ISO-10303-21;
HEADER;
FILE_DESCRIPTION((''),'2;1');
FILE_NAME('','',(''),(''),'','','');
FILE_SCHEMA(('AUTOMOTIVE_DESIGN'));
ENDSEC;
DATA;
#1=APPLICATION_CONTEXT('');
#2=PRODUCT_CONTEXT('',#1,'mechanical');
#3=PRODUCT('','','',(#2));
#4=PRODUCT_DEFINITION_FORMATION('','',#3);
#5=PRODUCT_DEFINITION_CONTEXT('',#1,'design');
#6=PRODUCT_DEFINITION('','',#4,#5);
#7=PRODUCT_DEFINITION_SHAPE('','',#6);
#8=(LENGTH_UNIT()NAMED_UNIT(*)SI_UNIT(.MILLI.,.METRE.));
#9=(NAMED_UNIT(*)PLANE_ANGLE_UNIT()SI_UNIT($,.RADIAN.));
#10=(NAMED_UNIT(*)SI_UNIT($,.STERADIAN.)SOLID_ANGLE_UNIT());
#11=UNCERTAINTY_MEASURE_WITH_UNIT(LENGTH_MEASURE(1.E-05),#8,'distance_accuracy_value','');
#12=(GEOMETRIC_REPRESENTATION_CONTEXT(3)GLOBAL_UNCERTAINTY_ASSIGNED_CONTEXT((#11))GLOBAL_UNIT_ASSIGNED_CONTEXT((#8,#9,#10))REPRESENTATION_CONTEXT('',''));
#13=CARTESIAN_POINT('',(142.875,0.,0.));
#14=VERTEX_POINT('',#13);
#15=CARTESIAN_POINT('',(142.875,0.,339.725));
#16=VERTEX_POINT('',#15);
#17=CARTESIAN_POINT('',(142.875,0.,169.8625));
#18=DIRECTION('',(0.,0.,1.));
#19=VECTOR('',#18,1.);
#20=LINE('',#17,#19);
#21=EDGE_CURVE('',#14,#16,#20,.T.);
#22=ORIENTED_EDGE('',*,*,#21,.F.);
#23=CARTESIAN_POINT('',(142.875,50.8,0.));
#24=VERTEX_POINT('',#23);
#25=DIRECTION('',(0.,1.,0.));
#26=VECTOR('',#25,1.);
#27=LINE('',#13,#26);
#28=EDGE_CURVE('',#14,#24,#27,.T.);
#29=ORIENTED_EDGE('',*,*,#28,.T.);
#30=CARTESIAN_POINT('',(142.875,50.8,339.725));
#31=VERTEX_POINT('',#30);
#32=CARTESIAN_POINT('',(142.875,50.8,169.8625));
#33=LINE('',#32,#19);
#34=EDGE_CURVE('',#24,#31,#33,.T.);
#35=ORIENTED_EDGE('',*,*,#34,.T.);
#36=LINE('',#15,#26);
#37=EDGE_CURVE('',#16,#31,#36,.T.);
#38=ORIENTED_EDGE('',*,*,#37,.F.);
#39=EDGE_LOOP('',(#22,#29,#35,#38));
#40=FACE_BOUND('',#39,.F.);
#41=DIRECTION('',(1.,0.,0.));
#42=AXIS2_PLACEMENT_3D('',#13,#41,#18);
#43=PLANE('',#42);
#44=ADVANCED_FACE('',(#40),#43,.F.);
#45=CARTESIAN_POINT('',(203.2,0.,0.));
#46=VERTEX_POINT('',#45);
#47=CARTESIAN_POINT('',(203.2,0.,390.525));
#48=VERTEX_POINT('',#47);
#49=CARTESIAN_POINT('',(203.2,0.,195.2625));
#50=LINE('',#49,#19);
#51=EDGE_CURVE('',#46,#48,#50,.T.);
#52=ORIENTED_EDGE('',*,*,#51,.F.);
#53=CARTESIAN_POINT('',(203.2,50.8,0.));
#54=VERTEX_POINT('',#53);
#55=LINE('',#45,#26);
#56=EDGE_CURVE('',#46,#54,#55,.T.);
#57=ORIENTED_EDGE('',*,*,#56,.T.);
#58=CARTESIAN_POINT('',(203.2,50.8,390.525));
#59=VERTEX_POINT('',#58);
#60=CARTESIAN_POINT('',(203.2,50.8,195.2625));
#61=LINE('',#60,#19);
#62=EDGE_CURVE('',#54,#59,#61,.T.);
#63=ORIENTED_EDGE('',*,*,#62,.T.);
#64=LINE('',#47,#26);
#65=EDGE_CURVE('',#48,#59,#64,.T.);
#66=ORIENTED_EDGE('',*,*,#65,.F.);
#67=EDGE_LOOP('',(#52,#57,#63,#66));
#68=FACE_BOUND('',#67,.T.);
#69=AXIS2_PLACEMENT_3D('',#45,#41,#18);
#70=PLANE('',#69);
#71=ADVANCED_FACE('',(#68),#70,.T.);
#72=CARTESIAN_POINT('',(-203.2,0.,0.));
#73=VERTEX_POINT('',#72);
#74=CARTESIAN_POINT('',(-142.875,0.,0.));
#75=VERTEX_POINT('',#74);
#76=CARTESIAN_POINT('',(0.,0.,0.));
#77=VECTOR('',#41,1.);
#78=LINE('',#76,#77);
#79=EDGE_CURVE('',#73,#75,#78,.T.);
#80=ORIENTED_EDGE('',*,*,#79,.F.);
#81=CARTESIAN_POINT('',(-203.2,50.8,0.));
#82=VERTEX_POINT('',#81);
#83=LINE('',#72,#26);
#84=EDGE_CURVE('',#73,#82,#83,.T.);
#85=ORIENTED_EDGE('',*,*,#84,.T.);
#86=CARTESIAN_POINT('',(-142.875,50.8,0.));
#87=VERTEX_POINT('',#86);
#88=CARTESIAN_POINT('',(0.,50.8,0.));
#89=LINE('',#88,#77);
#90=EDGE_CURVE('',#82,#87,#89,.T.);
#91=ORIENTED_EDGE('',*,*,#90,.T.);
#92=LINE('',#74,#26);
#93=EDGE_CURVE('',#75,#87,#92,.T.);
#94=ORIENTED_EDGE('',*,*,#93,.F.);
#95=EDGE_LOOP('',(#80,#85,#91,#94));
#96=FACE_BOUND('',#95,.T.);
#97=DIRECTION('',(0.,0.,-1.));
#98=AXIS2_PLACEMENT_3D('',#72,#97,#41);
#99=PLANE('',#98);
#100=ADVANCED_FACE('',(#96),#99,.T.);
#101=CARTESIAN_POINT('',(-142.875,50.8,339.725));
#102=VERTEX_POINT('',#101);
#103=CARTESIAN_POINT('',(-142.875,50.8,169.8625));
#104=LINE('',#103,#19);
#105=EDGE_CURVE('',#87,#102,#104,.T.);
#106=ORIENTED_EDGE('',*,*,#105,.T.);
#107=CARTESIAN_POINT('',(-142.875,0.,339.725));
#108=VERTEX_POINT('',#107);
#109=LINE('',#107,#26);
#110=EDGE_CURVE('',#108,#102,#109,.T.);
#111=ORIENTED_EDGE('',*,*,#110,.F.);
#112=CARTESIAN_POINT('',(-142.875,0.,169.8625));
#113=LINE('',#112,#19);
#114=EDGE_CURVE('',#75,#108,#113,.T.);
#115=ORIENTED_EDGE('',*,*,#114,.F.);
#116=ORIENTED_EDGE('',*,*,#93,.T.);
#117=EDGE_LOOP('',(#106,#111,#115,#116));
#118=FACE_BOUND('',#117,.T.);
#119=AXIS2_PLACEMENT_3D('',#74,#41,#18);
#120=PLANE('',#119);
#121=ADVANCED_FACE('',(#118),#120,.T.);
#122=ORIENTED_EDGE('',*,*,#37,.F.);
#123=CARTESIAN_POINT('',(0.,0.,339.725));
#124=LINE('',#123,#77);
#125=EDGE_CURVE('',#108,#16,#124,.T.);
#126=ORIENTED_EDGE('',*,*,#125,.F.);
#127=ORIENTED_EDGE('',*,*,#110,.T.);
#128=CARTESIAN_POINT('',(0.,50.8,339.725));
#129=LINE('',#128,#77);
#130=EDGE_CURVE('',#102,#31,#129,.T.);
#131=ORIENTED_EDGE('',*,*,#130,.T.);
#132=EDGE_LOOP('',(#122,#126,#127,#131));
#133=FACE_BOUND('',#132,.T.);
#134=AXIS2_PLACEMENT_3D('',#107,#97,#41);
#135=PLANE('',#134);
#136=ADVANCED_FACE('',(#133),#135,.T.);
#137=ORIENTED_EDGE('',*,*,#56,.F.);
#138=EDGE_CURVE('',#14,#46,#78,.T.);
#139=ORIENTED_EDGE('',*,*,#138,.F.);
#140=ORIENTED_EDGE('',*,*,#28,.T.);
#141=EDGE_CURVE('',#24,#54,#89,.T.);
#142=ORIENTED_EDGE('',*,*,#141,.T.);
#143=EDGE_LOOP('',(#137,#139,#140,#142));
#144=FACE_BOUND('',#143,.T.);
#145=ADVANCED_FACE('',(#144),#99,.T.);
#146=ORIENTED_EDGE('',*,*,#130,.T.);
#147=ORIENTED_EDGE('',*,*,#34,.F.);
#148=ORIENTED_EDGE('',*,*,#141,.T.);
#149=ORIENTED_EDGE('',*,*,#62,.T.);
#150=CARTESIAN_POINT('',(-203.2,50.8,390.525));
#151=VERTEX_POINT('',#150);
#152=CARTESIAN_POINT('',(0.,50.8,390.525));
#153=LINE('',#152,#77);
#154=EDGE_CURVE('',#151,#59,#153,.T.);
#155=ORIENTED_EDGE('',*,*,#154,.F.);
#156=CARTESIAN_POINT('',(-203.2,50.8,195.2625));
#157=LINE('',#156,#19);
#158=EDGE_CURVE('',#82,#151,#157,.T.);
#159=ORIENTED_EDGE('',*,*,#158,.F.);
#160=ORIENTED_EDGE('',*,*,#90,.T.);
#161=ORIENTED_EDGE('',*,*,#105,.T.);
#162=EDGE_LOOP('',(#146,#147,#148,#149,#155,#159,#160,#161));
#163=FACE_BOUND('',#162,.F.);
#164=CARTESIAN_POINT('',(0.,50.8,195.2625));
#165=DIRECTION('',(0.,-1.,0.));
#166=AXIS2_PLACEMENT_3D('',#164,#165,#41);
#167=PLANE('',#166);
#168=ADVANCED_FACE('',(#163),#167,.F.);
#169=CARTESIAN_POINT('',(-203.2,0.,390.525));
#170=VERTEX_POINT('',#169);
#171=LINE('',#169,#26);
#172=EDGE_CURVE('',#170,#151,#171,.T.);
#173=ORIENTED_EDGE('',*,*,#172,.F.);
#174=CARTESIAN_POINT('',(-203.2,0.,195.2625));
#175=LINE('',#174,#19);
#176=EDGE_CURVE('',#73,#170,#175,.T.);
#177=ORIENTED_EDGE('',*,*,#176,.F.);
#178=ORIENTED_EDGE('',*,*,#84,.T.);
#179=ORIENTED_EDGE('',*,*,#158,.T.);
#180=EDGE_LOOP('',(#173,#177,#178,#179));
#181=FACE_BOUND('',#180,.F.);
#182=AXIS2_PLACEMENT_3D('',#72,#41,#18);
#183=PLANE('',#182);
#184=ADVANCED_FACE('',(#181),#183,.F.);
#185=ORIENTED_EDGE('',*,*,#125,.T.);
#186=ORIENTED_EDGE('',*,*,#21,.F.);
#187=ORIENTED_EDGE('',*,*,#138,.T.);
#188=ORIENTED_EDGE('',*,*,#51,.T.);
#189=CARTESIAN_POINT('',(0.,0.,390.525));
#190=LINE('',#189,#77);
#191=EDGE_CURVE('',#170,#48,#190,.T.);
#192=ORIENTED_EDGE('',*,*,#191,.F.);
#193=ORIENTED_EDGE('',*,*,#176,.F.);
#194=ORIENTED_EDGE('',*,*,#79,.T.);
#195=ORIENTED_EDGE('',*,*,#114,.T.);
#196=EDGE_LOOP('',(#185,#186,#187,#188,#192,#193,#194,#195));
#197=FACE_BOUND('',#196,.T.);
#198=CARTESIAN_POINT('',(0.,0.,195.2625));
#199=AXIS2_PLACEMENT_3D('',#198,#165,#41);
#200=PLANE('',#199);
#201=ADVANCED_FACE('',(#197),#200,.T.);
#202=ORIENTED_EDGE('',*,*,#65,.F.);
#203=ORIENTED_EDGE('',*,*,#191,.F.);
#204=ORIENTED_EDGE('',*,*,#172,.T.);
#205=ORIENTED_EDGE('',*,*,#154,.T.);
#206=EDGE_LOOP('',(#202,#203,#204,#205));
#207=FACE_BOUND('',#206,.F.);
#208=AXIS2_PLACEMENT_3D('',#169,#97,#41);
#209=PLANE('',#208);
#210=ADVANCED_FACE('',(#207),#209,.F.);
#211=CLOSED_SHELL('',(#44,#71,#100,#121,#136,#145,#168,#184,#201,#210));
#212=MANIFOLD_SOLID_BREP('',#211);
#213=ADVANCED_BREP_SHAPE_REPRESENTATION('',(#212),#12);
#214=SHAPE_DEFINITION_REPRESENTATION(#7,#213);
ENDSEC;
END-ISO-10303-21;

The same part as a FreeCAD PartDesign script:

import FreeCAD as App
import Part
import Sketcher
Q = App.Units.Quantity

doc = App.newDocument("Part")
body = doc.addObject("PartDesign::Body", "Body")

# Sketch on XZ plane
sketch1 = doc.addObject("Sketcher::SketchObject", "Sketch")
body.addObject(sketch1)
sketch1.AttachmentSupport = (doc.XZ_Plane, [""])
sketch1.MapMode = "FlatFace"
sketch1.addGeometry([
    Part.LineSegment(App.Vector(-203, 391, 0), App.Vector(-203, 0, 0)),
    Part.LineSegment(App.Vector(-203, 0, 0), App.Vector(203, 0, 0)),
    Part.LineSegment(App.Vector(203, 0, 0), App.Vector(203, 391, 0)),
    Part.LineSegment(App.Vector(203, 391, 0), App.Vector(-203, 391, 0)),
], False)
sketch1.addConstraint([
    Sketcher.Constraint("Coincident", 0, 2, 1, 1),
    Sketcher.Constraint("Coincident", 1, 2, 2, 1),
    Sketcher.Constraint("Coincident", 2, 2, 3, 1),
    Sketcher.Constraint("Coincident", 3, 2, 0, 1),
    Sketcher.Constraint("Vertical", 0),
    Sketcher.Constraint("Horizontal", 1),
    Sketcher.Constraint("Vertical", 2),
    Sketcher.Constraint("Horizontal", 3),
    Sketcher.Constraint("Symmetric", 0, 2, 1, 2, -1, 1),
    Sketcher.Constraint("DistanceX", 1, 1, 1, 2, Q("16 in")),
    Sketcher.Constraint("DistanceY", 0, 2, 0, 1, Q("15.375 in")),
])
pad1 = doc.addObject("PartDesign::Pad", "Pad")
body.addObject(pad1)
pad1.Profile = sketch1
pad1.Length = Q("2 in")
pad1.Reversed = True

# Sketch on XZ plane
sketch2 = doc.addObject("Sketcher::SketchObject", "Sketch001")
body.addObject(sketch2)
sketch2.AttachmentSupport = (doc.XZ_Plane, [""])
sketch2.MapMode = "FlatFace"
sketch2.addGeometry([
    Part.LineSegment(App.Vector(-143, 340, 0), App.Vector(-143, 0, 0)),
    Part.LineSegment(App.Vector(-143, 0, 0), App.Vector(143, 0, 0)),
    Part.LineSegment(App.Vector(143, 0, 0), App.Vector(143, 340, 0)),
    Part.LineSegment(App.Vector(143, 340, 0), App.Vector(-143, 340, 0)),
], False)
sketch2.addConstraint([
    Sketcher.Constraint("Coincident", 0, 2, 1, 1),
    Sketcher.Constraint("Coincident", 1, 2, 2, 1),
    Sketcher.Constraint("Coincident", 2, 2, 3, 1),
    Sketcher.Constraint("Coincident", 3, 2, 0, 1),
    Sketcher.Constraint("Vertical", 0),
    Sketcher.Constraint("Horizontal", 1),
    Sketcher.Constraint("Vertical", 2),
    Sketcher.Constraint("Horizontal", 3),
    Sketcher.Constraint("Symmetric", 0, 2, 1, 2, -1, 1),
    Sketcher.Constraint("DistanceX", 1, 1, 1, 2, Q("11.25 in")),
    Sketcher.Constraint("DistanceY", 0, 2, 0, 1, Q("13.375 in")),
])
pocket1 = doc.addObject("PartDesign::Pocket", "Pocket")
body.addObject(pocket1)
pocket1.Profile = sketch2
pocket1.Type = "ThroughAll"

doc.recompute()
